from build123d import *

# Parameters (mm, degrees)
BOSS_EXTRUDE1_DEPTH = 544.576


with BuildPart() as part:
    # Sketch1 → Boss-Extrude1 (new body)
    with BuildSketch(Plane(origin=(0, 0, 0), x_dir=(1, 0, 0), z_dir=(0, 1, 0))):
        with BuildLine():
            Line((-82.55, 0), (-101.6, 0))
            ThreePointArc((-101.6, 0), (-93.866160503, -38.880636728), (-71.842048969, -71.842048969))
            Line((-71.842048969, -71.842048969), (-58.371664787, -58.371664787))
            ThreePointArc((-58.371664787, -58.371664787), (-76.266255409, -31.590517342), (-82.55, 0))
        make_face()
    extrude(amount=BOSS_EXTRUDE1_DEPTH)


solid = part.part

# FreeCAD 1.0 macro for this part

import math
import FreeCAD as App
import Part
import Sketcher
Q = App.Units.Quantity

doc = App.newDocument("Part")
body = doc.addObject("PartDesign::Body", "Body")

sketch1 = body.newObject("Sketcher::SketchObject", "Sketch")
sketch1.AttachmentSupport = (doc.getObject("XZ_Plane"), [""])
sketch1.MapMode = "FlatFace"
sketch1.addGeometry([
    Part.LineSegment(App.Vector(-83, 0, 0), App.Vector(-102, 0, 0)),
    Part.ArcOfCircle(Part.Circle(App.Vector(0, 0, 0), App.Vector(0, 0, 1), 102), math.radians(135), math.radians(180)),
    Part.LineSegment(App.Vector(-72, 72, 0), App.Vector(-58, 58, 0)),
    Part.ArcOfCircle(Part.Circle(App.Vector(0, 0, 0), App.Vector(0, 0, 1), 83), math.radians(135), math.radians(180)),
], False)
sketch1.addConstraint([
    Sketcher.Constraint("Coincident", 0, 2, 1, 2),
    Sketcher.Constraint("Coincident", 1, 1, 2, 1),
    Sketcher.Constraint("Coincident", 2, 2, 3, 1),
    Sketcher.Constraint("Coincident", 3, 2, 0, 1),
    Sketcher.Constraint("Horizontal", 0),
    Sketcher.Constraint("Coincident", 1, 3, -1, 1),
    Sketcher.Constraint("Coincident", 3, 3, -1, 1),
    Sketcher.Constraint("PointOnObject", 0, 2, -1),
    Sketcher.Constraint("Radius", 1, Q("4 in")),
    Sketcher.Constraint("Radius", 3, Q("3.25 in")),
    Sketcher.Constraint("Angle", 2, Q("-45 deg")),
    Sketcher.Constraint("DistanceX", 1, 1, -1, 1, 71.842049),
])
pad1 = body.newObject("PartDesign::Pad", "Pad")
pad1.Profile = sketch1
pad1.Length = Q("21.44 in")
pad1.Reversed = True

doc.recompute()
